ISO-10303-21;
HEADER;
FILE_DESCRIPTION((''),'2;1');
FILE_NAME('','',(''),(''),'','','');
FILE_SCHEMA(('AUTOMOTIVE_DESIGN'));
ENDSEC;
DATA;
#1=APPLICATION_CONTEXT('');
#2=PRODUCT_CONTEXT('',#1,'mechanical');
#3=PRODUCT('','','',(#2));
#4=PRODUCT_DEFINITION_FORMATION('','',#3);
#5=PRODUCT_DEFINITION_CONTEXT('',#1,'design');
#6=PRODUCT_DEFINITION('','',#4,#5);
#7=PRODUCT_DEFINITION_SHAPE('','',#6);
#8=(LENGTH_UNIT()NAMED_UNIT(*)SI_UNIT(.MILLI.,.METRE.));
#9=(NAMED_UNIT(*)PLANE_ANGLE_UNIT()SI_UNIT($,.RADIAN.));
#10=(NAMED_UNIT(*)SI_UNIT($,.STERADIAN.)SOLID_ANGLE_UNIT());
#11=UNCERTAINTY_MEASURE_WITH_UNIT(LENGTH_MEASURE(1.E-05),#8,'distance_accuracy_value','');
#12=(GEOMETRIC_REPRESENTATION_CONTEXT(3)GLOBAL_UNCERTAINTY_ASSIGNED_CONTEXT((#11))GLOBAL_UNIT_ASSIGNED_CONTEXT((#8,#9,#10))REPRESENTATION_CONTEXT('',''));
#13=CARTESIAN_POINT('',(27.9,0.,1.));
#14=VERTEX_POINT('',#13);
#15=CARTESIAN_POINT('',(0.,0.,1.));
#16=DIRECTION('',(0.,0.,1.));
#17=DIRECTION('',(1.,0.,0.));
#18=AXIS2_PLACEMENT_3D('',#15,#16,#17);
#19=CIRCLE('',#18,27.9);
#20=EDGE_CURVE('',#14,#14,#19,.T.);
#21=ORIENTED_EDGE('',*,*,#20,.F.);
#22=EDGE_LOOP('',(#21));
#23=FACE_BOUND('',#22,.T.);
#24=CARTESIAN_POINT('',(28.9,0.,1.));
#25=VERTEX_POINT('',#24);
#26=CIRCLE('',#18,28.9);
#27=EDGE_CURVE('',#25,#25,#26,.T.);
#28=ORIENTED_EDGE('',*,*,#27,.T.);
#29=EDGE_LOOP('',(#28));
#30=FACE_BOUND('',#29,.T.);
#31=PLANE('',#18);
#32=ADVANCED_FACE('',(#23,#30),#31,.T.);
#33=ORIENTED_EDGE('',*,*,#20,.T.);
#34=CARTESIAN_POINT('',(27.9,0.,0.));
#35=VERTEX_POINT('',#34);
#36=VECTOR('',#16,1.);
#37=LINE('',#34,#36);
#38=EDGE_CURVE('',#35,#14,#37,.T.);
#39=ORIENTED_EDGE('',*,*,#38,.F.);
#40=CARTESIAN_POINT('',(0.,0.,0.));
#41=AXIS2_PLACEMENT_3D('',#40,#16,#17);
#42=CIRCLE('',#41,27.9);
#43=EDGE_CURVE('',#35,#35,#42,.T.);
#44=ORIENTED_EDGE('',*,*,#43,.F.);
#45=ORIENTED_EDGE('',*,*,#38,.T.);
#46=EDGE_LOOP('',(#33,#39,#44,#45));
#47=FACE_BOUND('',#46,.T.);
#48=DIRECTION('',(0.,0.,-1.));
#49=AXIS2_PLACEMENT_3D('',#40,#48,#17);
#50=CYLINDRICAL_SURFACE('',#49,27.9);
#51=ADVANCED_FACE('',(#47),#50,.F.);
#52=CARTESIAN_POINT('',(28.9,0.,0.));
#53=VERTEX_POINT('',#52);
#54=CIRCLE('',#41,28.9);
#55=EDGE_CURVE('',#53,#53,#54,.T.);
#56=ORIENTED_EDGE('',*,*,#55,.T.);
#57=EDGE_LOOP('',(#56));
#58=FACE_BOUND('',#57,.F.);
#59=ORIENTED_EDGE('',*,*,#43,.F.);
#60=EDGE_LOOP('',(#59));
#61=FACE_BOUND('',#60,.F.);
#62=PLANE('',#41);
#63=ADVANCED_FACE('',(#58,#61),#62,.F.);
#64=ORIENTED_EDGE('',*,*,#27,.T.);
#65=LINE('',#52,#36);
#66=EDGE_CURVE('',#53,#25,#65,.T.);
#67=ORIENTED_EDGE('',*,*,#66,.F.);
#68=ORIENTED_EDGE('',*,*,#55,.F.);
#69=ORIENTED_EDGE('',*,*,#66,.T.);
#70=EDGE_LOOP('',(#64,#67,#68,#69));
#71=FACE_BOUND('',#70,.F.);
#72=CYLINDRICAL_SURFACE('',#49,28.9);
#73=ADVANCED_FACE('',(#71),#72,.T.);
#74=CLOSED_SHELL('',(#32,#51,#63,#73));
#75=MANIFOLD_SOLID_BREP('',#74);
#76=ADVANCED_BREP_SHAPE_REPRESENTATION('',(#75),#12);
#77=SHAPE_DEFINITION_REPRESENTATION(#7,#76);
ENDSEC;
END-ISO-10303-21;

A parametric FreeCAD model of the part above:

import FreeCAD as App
import Part
import Sketcher

V = App.Vector
Q = App.Units.Quantity

doc = App.newDocument("Part")
params = doc.addObject("Spreadsheet::Sheet", "Params")
for row, (alias, value) in enumerate([
    ("sketch1_diameter", "57.8 mm"),
    ("sketch1_diameter2", "55.8 mm"),
    ("pad1_length", "1 mm"),
], start=1):
    params.set(f"A{row}", alias)
    params.set(f"B{row}", "=" + value)
    params.setAlias(f"B{row}", alias)

body = doc.addObject("PartDesign::Body", "Body")

sketch1 = body.newObject("Sketcher::SketchObject", "Sketch")
sketch1.AttachmentSupport = (doc.getObject("XY_Plane"), [""])
sketch1.MapMode = "FlatFace"
sketch1.addGeometry([
    Part.Circle(V(0, 0, 0), V(0, 0, 1), 29),
    Part.Circle(V(0, 0, 0), V(0, 0, 1), 28),
], False)
sketch1.addConstraint([
    Sketcher.Constraint("Coincident", 0, 3, -1, 1),
    Sketcher.Constraint("Coincident", 1, 3, -1, 1),
    Sketcher.Constraint("Diameter", 0, Q("57.8 mm")),
    Sketcher.Constraint("Diameter", 1, Q("55.8 mm")),
])
sketch1.setExpression("Constraints[2]", "Params.sketch1_diameter")
sketch1.setExpression("Constraints[3]", "Params.sketch1_diameter2")
pad1 = body.newObject("PartDesign::Pad", "Pad")
pad1.Profile = sketch1
pad1.setExpression("Length", "Params.pad1_length")

doc.recompute()
